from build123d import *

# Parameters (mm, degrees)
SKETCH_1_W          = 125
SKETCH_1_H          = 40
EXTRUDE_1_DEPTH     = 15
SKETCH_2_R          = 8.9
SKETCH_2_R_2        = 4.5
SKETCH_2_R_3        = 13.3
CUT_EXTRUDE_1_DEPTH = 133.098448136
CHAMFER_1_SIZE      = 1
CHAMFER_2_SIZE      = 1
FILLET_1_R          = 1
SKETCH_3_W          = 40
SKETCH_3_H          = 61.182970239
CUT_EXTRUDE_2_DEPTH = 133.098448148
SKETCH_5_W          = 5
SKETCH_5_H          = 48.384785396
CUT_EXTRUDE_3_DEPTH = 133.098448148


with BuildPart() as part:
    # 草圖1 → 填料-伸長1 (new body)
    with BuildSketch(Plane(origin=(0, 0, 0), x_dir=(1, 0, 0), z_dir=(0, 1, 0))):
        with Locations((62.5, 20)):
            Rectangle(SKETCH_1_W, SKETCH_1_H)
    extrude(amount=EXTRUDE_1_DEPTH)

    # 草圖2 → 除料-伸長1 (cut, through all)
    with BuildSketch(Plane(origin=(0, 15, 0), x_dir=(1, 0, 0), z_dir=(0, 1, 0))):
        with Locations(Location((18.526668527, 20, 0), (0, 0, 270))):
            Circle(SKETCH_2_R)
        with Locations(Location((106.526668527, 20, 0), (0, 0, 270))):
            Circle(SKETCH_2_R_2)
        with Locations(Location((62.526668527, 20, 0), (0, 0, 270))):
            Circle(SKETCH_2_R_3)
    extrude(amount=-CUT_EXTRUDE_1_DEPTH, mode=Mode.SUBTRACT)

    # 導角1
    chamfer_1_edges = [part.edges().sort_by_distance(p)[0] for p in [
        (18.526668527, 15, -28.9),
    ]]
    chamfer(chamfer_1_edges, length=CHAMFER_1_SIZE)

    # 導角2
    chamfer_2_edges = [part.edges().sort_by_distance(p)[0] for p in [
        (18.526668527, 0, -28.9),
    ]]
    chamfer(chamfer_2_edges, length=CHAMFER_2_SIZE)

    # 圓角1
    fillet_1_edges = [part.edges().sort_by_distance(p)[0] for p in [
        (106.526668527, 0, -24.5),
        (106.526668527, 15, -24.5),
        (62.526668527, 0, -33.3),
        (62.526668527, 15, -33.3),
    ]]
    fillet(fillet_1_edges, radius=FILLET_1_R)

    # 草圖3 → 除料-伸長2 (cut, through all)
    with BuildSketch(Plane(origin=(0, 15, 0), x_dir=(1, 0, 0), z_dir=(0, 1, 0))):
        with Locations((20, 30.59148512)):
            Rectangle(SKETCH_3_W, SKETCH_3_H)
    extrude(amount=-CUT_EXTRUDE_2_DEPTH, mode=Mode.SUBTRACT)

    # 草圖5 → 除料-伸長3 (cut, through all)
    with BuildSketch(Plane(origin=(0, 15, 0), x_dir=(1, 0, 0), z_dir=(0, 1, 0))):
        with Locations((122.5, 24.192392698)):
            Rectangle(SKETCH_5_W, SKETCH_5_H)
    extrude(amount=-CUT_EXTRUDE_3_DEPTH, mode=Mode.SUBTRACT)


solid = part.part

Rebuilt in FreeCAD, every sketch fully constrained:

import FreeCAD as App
import Part
import Sketcher
from FreeCAD import Vector
Q = App.Units.Quantity


def edges_at(feature, points):
    """Names of the edges that pass closest to the given points."""
    edges = feature.Shape.Edges
    near = lambda p: min(range(len(edges)), key=lambda i: edges[i].distToShape(Part.Vertex(*p))[0])
    return sorted({f"Edge{near(p) + 1}" for p in points})


def add_polygon(sketch, points):
    """Adds a closed chain of lines whose ends are joined by coincident constraints."""
    first, n = sketch.GeometryCount, len(points)
    for a, b in zip(points, points[1:] + points[:1]):
        sketch.addGeometry(Part.LineSegment(App.Vector(*a, 0), App.Vector(*b, 0)), False)
    for i in range(n):
        sketch.addConstraint(Sketcher.Constraint("Coincident", first + i, 2, first + (i + 1) % n, 1))

doc = App.newDocument("Part")
body = doc.addObject("PartDesign::Body", "Body")

# Sketch on XZ plane
sketch1 = body.newObject("Sketcher::SketchObject", "Sketch")
sketch1.AttachmentSupport = (doc.getObject("XZ_Plane"), [""])
sketch1.MapMode = "FlatFace"
add_polygon(sketch1, [(0, -40), (0, 0), (125, 0), (125, -40)])  # lines 0-3
sketch1.addConstraint([
    Sketcher.Constraint("Vertical", 0),
    Sketcher.Constraint("Horizontal", 1),
    Sketcher.Constraint("Vertical", 2),
    Sketcher.Constraint("Horizontal", 3),
    Sketcher.Constraint("Coincident", 0, 2, -1, 1),
    Sketcher.Constraint("DistanceX", 1, 1, 1, 2, Q("125 mm")),
    Sketcher.Constraint("DistanceY", 0, 1, 0, 2, Q("40 mm")),
])
pad1 = body.newObject("PartDesign::Pad", "Pad")
pad1.Profile = sketch1
pad1.Length = 15
pad1.Reversed = True

# Sketch on XZ plane
sketch2 = body.newObject("Sketcher::SketchObject", "Sketch001")
sketch2.AttachmentSupport = (doc.getObject("XZ_Plane"), [""])
sketch2.MapMode = "FlatFace"
sketch2.AttachmentOffset = App.Placement(Vector(0, 0, -15), App.Rotation())
sketch2.addGeometry([
    Part.Circle(Vector(18.5, -20, 0), Vector(0, 0, 1), 8.9),
    Part.Circle(Vector(106.5, -20, 0), Vector(0, 0, 1), 4.5),
    Part.Circle(Vector(62.5, -20, 0), Vector(0, 0, 1), 13.3),
], False)
sketch2.addConstraint([
    Sketcher.Constraint("Horizontal", 0, 3, 1, 3),
    Sketcher.Constraint("Horizontal", 1, 3, 2, 3),
    Sketcher.Constraint("Diameter", 1, Q("9 mm")),
    Sketcher.Constraint("Diameter", 0, Q("17.8 mm")),
    Sketcher.Constraint("Diameter", 2, Q("26.6 mm")),
    Sketcher.Constraint("DistanceY", 0, 3, -1, 1, Q("20 mm")),
    Sketcher.Constraint("DistanceX", 0, 3, 1, 3, Q("88 mm")),
    Sketcher.Constraint("DistanceX", 0, 3, 2, 3, Q("44 mm")),
    Sketcher.Constraint("DistanceX", -1, 1, 0, 3, Q("18.526669 mm")),
])
pocket1 = body.newObject("PartDesign::Pocket", "Pocket")
pocket1.Profile = sketch2
pocket1.Type = "ThroughAll"
pocket1.Reversed = True
doc.recompute()

chamfer = body.newObject("PartDesign::Chamfer", "Chamfer")
chamfer.Base = (pocket1, edges_at(pocket1, [(18.527, 15, -28.9)]))
chamfer.Size = 1
doc.recompute()

chamfer2 = body.newObject("PartDesign::Chamfer", "Chamfer001")
chamfer2.Base = (chamfer, edges_at(chamfer, [(18.527, 0, -28.9)]))
chamfer2.Size = 1
doc.recompute()

fillet = body.newObject("PartDesign::Fillet", "Fillet")
fillet.Base = (chamfer2, edges_at(chamfer2, [
    (106.527, 0, -24.5),
    (106.527, 15, -24.5),
    (62.527, 0, -33.3),
    (62.527, 15, -33.3),
]))
fillet.Radius = 1

# Sketch on XZ plane
sketch3 = body.newObject("Sketcher::SketchObject", "Sketch002")
sketch3.AttachmentSupport = (doc.getObject("XZ_Plane"), [""])
sketch3.MapMode = "FlatFace"
sketch3.AttachmentOffset = App.Placement(Vector(0, 0, -15), App.Rotation())
add_polygon(sketch3, [(0, -61), (0, 0), (40, 0), (40, -61)])  # lines 0-3
sketch3.addConstraint([
    Sketcher.Constraint("Vertical", 0),
    Sketcher.Constraint("Horizontal", 1),
    Sketcher.Constraint("Vertical", 2),
    Sketcher.Constraint("Horizontal", 3),
    Sketcher.Constraint("Coincident", 0, 2, -1, 1),
    Sketcher.Constraint("DistanceX", 1, 1, 1, 2, Q("40 mm")),
    Sketcher.Constraint("DistanceY", 0, 1, 0, 2, Q("61.18297 mm")),
])
pocket2 = body.newObject("PartDesign::Pocket", "Pocket001")
pocket2.Profile = sketch3
pocket2.Type = "ThroughAll"
pocket2.Reversed = True

# Sketch on XZ plane
sketch4 = body.newObject("Sketcher::SketchObject", "Sketch003")
sketch4.AttachmentSupport = (doc.getObject("XZ_Plane"), [""])
sketch4.MapMode = "FlatFace"
sketch4.AttachmentOffset = App.Placement(Vector(0, 0, -15), App.Rotation())
add_polygon(sketch4, [(120, -48), (120, 0), (125, 0), (125, -48)])  # lines 0-3
sketch4.addConstraint([
    Sketcher.Constraint("Vertical", 0),
    Sketcher.Constraint("Horizontal", 1),
    Sketcher.Constraint("Vertical", 2),
    Sketcher.Constraint("Horizontal", 3),
    Sketcher.Constraint("PointOnObject", 0, 2, -1),
    Sketcher.Constraint("DistanceX", 1, 1, 1, 2, Q("5 mm")),
    Sketcher.Constraint("DistanceX", -1, 1, 0, 2, Q("120 mm")),
    Sketcher.Constraint("DistanceY", 0, 1, 0, 2, Q("48.384785 mm")),
])
pocket3 = body.newObject("PartDesign::Pocket", "Pocket002")
pocket3.Profile = sketch4
pocket3.Type = "ThroughAll"
pocket3.Reversed = True

doc.recompute()
